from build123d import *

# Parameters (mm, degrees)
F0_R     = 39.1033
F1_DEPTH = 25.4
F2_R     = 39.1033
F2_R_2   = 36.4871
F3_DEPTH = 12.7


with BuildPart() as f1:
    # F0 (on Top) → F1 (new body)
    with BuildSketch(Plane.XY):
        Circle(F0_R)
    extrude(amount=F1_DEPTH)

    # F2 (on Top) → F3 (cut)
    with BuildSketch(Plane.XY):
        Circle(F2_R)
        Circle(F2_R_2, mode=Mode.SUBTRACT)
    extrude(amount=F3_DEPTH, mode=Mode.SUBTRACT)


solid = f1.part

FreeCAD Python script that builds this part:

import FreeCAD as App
import Part
import Sketcher

V = App.Vector
Q = App.Units.Quantity

doc = App.newDocument("Part")
body = doc.addObject("PartDesign::Body", "Body")

# Sketch on XY plane
sketch1 = body.newObject("Sketcher::SketchObject", "Sketch")
sketch1.AttachmentSupport = (doc.getObject("XY_Plane"), [""])
sketch1.MapMode = "FlatFace"
sketch1.addGeometry(Part.Circle(V(0, 0, 0), V(0, 0, 1), 39), False)
sketch1.addConstraint(Sketcher.Constraint("Coincident", 0, 3, -1, 1))
sketch1.addConstraint(Sketcher.Constraint("Diameter", 0, Q("3.079 in")))
pad1 = body.newObject("PartDesign::Pad", "Pad")
pad1.Profile = sketch1
pad1.Length = Q("1 in")

# Sketch on XY plane
sketch2 = body.newObject("Sketcher::SketchObject", "Sketch001")
sketch2.AttachmentSupport = (doc.getObject("XY_Plane"), [""])
sketch2.MapMode = "FlatFace"
sketch2.addGeometry(Part.Circle(V(0, 0, 0), V(0, 0, 1), 39), False)
sketch2.addGeometry(Part.Circle(V(0, 0, 0), V(0, 0, 1), 36), False)
sketch2.addConstraint(Sketcher.Constraint("Coincident", 0, 3, -1, 1))
sketch2.addConstraint(Sketcher.Constraint("Coincident", 1, 3, -1, 1))
sketch2.addConstraint(Sketcher.Constraint("Diameter", 0, Q("3.079 in")))
sketch2.addConstraint(Sketcher.Constraint("Diameter", 1, Q("2.873 in")))
pocket1 = body.newObject("PartDesign::Pocket", "Pocket")
pocket1.Profile = sketch2
pocket1.Length = Q("0.5 in")
pocket1.Reversed = True

doc.recompute()
